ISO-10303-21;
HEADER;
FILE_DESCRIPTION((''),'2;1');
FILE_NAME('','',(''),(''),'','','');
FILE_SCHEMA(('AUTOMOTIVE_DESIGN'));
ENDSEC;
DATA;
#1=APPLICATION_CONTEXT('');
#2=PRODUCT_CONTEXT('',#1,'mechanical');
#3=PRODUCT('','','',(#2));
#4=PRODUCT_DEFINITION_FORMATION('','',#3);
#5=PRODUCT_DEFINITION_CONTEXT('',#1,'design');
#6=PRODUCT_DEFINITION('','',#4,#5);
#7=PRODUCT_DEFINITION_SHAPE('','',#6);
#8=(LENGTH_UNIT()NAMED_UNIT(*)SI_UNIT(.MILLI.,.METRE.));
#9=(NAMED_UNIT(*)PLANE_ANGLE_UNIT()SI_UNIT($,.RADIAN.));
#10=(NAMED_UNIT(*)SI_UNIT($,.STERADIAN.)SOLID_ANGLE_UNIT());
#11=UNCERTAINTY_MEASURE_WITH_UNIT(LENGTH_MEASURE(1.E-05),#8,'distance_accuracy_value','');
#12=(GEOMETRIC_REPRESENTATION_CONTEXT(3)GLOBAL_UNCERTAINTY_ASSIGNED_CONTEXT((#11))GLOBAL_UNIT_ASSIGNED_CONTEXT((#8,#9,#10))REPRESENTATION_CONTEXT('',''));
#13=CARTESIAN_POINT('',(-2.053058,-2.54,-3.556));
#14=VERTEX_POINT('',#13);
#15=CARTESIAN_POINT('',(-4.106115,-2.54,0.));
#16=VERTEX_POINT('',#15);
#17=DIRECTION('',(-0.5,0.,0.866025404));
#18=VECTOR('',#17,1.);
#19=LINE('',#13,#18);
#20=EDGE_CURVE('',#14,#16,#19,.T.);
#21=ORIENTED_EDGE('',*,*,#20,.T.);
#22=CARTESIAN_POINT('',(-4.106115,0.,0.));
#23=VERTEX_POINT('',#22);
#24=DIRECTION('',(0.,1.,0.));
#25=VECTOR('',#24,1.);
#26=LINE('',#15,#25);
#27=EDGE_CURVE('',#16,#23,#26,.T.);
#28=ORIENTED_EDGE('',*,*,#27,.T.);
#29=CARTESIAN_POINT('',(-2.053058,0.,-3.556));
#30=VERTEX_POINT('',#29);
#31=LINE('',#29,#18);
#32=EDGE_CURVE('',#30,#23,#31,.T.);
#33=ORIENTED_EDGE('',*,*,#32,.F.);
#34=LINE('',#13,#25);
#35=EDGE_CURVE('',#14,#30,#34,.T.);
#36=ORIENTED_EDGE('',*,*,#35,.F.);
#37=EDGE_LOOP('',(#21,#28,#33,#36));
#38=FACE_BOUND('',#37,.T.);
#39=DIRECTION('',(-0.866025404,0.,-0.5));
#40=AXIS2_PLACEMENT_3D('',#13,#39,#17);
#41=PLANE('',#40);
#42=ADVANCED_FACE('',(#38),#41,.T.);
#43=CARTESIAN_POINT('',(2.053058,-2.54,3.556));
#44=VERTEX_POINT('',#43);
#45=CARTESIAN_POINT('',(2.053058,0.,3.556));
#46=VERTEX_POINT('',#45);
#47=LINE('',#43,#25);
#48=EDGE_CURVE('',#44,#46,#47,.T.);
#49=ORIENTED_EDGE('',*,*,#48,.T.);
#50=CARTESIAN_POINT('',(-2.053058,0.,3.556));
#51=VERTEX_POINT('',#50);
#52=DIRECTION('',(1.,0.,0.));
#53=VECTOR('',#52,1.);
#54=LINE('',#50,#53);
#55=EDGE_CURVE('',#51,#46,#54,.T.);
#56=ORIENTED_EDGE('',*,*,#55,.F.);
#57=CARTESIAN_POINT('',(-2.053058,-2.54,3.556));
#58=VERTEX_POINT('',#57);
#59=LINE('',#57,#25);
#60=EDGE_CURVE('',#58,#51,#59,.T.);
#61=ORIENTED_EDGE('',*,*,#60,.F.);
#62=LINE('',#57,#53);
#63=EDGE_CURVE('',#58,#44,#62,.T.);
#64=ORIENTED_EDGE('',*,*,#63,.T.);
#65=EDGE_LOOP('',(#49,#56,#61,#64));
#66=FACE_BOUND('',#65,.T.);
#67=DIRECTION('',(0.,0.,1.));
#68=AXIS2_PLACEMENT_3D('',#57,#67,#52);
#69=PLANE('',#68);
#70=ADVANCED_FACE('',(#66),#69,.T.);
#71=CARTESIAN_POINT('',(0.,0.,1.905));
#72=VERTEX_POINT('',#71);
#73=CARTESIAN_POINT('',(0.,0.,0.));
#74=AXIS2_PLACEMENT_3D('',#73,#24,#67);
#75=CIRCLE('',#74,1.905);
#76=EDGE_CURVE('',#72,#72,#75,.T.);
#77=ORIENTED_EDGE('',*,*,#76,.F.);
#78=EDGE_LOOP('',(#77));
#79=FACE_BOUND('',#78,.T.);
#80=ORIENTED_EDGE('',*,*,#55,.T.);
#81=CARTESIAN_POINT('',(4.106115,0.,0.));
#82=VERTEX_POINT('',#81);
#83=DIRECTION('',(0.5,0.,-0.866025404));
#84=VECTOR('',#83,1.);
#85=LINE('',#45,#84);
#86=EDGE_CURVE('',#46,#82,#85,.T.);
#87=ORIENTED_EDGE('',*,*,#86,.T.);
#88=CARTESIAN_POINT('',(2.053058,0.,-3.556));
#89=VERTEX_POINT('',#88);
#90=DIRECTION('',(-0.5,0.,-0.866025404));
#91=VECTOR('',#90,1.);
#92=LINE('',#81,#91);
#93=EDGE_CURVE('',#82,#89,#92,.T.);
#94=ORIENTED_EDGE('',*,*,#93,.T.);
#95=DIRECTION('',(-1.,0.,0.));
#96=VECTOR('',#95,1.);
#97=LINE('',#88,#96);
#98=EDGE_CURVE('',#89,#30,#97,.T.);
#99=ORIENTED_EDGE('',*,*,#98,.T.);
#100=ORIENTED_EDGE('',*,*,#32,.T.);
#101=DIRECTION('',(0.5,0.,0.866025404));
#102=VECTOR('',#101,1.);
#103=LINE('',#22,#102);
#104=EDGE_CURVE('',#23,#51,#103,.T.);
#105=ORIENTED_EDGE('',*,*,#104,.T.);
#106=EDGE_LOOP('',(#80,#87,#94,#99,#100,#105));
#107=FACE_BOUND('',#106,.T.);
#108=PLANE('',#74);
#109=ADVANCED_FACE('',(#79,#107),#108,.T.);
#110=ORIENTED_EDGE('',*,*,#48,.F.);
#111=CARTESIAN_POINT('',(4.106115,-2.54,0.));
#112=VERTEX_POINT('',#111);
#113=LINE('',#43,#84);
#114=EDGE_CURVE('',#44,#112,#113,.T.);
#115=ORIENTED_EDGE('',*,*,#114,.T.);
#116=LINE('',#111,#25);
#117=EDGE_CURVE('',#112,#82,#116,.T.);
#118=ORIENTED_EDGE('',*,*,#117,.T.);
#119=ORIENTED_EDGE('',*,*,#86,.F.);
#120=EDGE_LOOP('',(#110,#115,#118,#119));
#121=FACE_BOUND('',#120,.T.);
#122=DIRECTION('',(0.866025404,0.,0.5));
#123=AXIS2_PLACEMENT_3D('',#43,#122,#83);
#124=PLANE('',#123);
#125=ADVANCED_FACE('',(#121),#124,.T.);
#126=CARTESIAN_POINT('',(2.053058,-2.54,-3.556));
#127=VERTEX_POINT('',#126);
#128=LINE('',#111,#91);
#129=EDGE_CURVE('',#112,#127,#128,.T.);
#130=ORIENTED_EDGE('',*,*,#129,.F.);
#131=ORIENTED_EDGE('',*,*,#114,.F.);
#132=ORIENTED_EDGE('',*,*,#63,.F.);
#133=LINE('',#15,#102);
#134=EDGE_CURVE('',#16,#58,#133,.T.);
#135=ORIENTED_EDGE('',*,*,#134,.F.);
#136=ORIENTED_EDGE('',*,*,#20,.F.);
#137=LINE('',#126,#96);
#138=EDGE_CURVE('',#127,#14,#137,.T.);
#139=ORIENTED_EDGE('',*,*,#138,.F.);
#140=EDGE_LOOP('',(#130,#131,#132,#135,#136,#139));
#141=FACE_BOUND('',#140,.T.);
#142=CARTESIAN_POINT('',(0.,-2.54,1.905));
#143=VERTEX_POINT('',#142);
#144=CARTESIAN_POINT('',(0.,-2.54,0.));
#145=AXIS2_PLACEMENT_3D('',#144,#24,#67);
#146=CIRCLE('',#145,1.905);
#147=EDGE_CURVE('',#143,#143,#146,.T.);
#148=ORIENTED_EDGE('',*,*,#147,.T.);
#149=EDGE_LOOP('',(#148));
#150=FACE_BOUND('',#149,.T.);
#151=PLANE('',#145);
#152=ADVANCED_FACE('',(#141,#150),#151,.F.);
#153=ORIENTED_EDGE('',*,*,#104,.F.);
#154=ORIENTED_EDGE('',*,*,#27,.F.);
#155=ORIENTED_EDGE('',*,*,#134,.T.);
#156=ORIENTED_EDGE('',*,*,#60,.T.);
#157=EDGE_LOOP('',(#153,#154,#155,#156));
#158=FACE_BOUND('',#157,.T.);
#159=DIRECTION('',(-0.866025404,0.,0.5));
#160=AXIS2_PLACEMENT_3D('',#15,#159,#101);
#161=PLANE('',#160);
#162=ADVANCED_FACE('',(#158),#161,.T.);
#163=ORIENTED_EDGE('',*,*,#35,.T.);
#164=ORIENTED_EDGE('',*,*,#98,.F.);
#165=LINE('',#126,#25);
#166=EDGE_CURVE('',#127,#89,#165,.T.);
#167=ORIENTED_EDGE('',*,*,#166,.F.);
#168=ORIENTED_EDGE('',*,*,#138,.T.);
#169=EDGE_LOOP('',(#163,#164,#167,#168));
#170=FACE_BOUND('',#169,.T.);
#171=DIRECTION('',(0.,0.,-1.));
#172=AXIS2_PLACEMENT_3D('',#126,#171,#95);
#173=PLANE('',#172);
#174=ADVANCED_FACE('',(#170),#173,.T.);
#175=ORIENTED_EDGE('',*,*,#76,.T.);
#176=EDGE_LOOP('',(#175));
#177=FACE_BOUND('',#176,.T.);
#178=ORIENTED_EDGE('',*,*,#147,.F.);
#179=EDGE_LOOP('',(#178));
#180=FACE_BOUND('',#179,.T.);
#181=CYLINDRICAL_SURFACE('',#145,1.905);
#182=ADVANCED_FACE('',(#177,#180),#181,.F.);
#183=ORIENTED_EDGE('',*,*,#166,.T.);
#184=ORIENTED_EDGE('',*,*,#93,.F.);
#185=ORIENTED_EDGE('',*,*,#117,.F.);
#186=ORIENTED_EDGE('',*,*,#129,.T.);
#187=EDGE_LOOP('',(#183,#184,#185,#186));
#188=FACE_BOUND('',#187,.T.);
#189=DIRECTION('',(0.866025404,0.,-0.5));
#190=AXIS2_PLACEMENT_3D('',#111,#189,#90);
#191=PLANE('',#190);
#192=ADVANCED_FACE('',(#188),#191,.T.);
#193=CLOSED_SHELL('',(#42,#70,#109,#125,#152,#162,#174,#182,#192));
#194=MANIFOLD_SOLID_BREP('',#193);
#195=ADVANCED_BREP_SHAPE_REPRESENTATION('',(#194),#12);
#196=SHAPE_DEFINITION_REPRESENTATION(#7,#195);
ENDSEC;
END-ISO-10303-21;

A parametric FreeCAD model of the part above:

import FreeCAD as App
import Part
import Sketcher
from FreeCAD import Vector
Q = App.Units.Quantity


def add_polygon(sketch, points):
    """Adds a closed chain of lines whose ends are joined by coincident constraints."""
    first, n = sketch.GeometryCount, len(points)
    for a, b in zip(points, points[1:] + points[:1]):
        sketch.addGeometry(Part.LineSegment(App.Vector(*a, 0), App.Vector(*b, 0)), False)
    for i in range(n):
        sketch.addConstraint(Sketcher.Constraint("Coincident", first + i, 2, first + (i + 1) % n, 1))

doc = App.newDocument("Part")
body = doc.addObject("PartDesign::Body", "Body")

# Sketch on XZ plane
sketch1 = doc.addObject("Sketcher::SketchObject", "Sketch")
body.addObject(sketch1)
sketch1.AttachmentSupport = (doc.XZ_Plane, [""])
sketch1.MapMode = "FlatFace"
add_polygon(sketch1, [(2.053058, -3.556), (-2.053058, -3.556), (-4.106115, 0), (-2.053058, 3.556), (2.053058, 3.556), (4.106115, 0)])  # lines 0-5
sketch1.addGeometry(Part.Circle(Vector(0, 0, 0), Vector(0, 0, 1), 1.905), False)  # 6
sketch1.addConstraint([
    Sketcher.Constraint("Horizontal", 0),
    Sketcher.Constraint("Horizontal", 3),
    Sketcher.Constraint("Coincident", 6, 3, -1, 1),
    Sketcher.Constraint("Symmetric", 0, 2, 3, 2, -1, 1),
    Sketcher.Constraint("Symmetric", 1, 2, 4, 2, -1, 1),
    Sketcher.Constraint("PointOnObject", 1, 2, -1),
    Sketcher.Constraint("Parallel", 2, 5),
    Sketcher.Constraint("Vertical", 0, 2, 2, 2),
    Sketcher.Constraint("Diameter", 6, Q("0.15 in")),
    Sketcher.Constraint("Angle", 1, Q("120 deg")),
    Sketcher.Constraint("DistanceY", 0, 2, -1, 1, Q("0.14 in")),
    Sketcher.Constraint("DistanceX", 0, 2, 0, 1, Q("4.106115 mm")),
])
pad1 = doc.addObject("PartDesign::Pad", "Pad")
body.addObject(pad1)
pad1.Profile = sketch1
pad1.Length = Q("0.1 in")

doc.recompute()
